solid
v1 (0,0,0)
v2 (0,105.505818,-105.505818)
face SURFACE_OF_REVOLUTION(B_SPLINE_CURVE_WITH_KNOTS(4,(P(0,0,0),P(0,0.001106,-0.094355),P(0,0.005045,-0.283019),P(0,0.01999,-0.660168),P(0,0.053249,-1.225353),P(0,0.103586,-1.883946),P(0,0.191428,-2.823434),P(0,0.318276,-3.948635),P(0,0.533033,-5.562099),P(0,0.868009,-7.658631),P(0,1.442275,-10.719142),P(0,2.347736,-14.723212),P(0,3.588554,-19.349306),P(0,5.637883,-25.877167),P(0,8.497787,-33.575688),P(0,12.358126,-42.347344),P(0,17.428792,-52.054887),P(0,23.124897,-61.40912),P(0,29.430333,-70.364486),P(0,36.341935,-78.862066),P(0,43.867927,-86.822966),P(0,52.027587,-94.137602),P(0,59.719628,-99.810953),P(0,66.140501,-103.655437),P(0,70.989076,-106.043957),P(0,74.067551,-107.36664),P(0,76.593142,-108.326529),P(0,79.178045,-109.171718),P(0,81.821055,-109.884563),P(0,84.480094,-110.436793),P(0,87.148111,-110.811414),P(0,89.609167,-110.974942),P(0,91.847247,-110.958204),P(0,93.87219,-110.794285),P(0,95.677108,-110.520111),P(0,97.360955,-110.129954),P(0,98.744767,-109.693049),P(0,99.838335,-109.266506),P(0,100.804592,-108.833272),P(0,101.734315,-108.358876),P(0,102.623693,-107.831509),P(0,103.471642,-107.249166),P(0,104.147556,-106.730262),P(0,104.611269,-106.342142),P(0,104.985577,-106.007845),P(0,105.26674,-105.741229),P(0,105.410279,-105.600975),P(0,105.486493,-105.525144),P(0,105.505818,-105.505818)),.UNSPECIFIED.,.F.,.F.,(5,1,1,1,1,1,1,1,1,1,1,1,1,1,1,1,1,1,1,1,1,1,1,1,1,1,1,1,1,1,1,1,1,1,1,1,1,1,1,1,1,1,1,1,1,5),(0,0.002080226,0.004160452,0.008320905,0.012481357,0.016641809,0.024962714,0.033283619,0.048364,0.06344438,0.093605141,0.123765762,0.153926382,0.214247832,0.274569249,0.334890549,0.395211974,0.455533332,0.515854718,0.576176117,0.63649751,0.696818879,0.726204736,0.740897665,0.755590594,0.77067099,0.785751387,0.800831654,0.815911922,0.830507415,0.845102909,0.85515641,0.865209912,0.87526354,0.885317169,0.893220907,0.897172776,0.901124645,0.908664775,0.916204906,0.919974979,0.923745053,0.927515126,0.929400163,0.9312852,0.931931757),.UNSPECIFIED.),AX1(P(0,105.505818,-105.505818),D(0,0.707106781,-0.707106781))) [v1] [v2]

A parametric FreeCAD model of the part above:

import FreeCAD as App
import Part
import Sketcher
from FreeCAD import Vector

doc = App.newDocument("Part")
body = doc.addObject("PartDesign::Body", "Body")

sketch1 = doc.addObject("Sketcher::SketchObject", "Sketch")
body.addObject(sketch1)
sketch1.AttachmentSupport = (doc.YZ_Plane, [""])
sketch1.MapMode = "FlatFace"
sketch1.addGeometry([
    Part.LineSegment(Vector(105.505818, -105.505818, 0), Vector(0, 0, 0)),
    Part.BSplineCurve([Vector(0, 0, 0), Vector(0.001106, -0.094355, 0), Vector(0.005045, -0.283019, 0), Vector(0.01999, -0.660168, 0), Vector(0.053249, -1.225353, 0), Vector(0.103586, -1.883946, 0), Vector(0.191428, -2.823434, 0), Vector(0.318276, -3.948635, 0), Vector(0.533033, -5.562099, 0), Vector(0.868009, -7.658631, 0), Vector(1.442275, -10.719142, 0), Vector(2.347736, -14.723212, 0), Vector(3.588554, -19.349306, 0), Vector(5.637883, -25.877167, 0), Vector(8.497787, -33.575688, 0), Vector(12.358126, -42.347344, 0), Vector(17.428792, -52.054887, 0), Vector(23.124897, -61.40912, 0), Vector(29.430333, -70.364486, 0), Vector(36.341935, -78.862066, 0), Vector(43.867927, -86.822966, 0), Vector(52.027587, -94.137602, 0), Vector(59.719628, -99.810953, 0), Vector(66.140501, -103.655437, 0), Vector(70.989076, -106.043957, 0), Vector(74.067551, -107.36664, 0), Vector(76.593142, -108.326529, 0), Vector(79.178045, -109.171718, 0), Vector(81.821055, -109.884563, 0), Vector(84.480094, -110.436793, 0), Vector(87.148111, -110.811414, 0), Vector(89.609167, -110.974942, 0), Vector(91.847247, -110.958204, 0), Vector(93.87219, -110.794285, 0), Vector(95.677108, -110.520111, 0), Vector(97.360955, -110.129954, 0), Vector(98.744767, -109.693049, 0), Vector(99.838335, -109.266506, 0), Vector(100.804592, -108.833272, 0), Vector(101.734315, -108.358876, 0), Vector(102.623693, -107.831509, 0), Vector(103.471642, -107.249166, 0), Vector(104.147556, -106.730262, 0), Vector(104.611269, -106.342142, 0), Vector(104.985577, -106.007845, 0), Vector(105.26674, -105.741229, 0), Vector(105.410279, -105.600975, 0), Vector(105.486493, -105.525144, 0), Vector(105.505818, -105.505818, 0)], [5, 1, 1, 1, 1, 1, 1, 1, 1, 1, 1, 1, 1, 1, 1, 1, 1, 1, 1, 1, 1, 1, 1, 1, 1, 1, 1, 1, 1, 1, 1, 1, 1, 1, 1, 1, 1, 1, 1, 1, 1, 1, 1, 1, 1, 5], [0, 0.002080226, 0.004160452, 0.008320905, 0.012481357, 0.016641809, 0.024962714, 0.033283619, 0.048364, 0.06344438, 0.093605141, 0.123765762, 0.153926382, 0.214247832, 0.274569249, 0.334890549, 0.395211974, 0.455533332, 0.515854718, 0.576176117, 0.63649751, 0.696818879, 0.726204736, 0.740897665, 0.755590594, 0.77067099, 0.785751387, 0.800831654, 0.815911922, 0.830507415, 0.845102909, 0.85515641, 0.865209912, 0.87526354, 0.885317169, 0.893220907, 0.897172776, 0.901124645, 0.908664775, 0.916204906, 0.919974979, 0.923745053, 0.927515126, 0.929400163, 0.9312852, 0.931931757], False, 4, [1, 1, 1, 1, 1, 1, 1, 1, 1, 1, 1, 1, 1, 1, 1, 1, 1, 1, 1, 1, 1, 1, 1, 1, 1, 1, 1, 1, 1, 1, 1, 1, 1, 1, 1, 1, 1, 1, 1, 1, 1, 1, 1, 1, 1, 1, 1, 1, 1], False),
], False)
sketch1.addGeometry(Part.LineSegment(Vector(105.505818, -105.505818, 0), Vector(0, 0, 0)), True)
sketch1.addConstraint([
    Sketcher.Constraint("Block", 1),
    Sketcher.Constraint("Coincident", 0, 1, 1, 2),
    Sketcher.Constraint("Coincident", 1, 1, 0, 2),
    Sketcher.Constraint("Coincident", 2, 2, -1, 1),
    Sketcher.Constraint("Coincident", 2, 1, 0, 1),
])
revolution = doc.addObject("PartDesign::Revolution", "Revolution")
body.addObject(revolution)
revolution.Profile = sketch1
revolution.ReferenceAxis = (sketch1, ["Axis0"])
revolution.Angle = 360

doc.recompute()
